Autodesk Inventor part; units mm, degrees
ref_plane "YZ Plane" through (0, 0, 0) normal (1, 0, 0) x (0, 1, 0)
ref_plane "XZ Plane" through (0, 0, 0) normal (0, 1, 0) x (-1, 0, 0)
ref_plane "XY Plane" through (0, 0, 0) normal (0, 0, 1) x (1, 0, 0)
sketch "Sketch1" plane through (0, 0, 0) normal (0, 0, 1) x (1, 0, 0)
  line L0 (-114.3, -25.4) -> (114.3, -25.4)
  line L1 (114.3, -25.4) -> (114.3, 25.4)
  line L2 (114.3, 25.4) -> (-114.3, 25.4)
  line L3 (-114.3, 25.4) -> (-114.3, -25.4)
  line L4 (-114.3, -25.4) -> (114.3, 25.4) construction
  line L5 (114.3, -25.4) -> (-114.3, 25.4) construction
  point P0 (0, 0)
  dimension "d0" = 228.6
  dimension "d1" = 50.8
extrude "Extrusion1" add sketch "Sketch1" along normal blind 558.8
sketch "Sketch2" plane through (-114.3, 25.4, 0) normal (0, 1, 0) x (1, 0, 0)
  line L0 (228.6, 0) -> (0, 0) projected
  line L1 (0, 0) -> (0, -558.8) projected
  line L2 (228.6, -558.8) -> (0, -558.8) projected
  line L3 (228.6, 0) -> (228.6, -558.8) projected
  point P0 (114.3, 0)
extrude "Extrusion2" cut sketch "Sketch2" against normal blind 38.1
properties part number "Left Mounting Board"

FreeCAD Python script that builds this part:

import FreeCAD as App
import Part
import Sketcher
Q = App.Units.Quantity


def add_polygon(sketch, points):
    """Adds a closed chain of lines whose ends are joined by coincident constraints."""
    first, n = sketch.GeometryCount, len(points)
    for a, b in zip(points, points[1:] + points[:1]):
        sketch.addGeometry(Part.LineSegment(App.Vector(*a, 0), App.Vector(*b, 0)), False)
    for i in range(n):
        sketch.addConstraint(Sketcher.Constraint("Coincident", first + i, 2, first + (i + 1) % n, 1))

doc = App.newDocument("Part")
params = doc.addObject("Spreadsheet::Sheet", "Params")
for row, (alias, value) in enumerate([
    ("sketch1_width", "9 in"),
    ("sketch1_height", "2 in"),
    ("pad1_length", "22 in"),
    ("sketch2_width", "9 in"),
    ("sketch2_height", "22 in"),
    ("pocket1_length", "1.5 in"),
], start=1):
    params.set(f"A{row}", alias)
    params.set(f"B{row}", "=" + value)
    params.setAlias(f"B{row}", alias)

body = doc.addObject("PartDesign::Body", "Body")

sketch1 = body.newObject("Sketcher::SketchObject", "Sketch")
sketch1.AttachmentSupport = (doc.getObject("XY_Plane"), [""])
sketch1.MapMode = "FlatFace"
add_polygon(sketch1, [(-114, 25), (-114, -25), (114, -25), (114, 25)])
sketch1.addConstraint(Sketcher.Constraint("Vertical", 0))
sketch1.addConstraint(Sketcher.Constraint("Horizontal", 1))
sketch1.addConstraint(Sketcher.Constraint("Vertical", 2))
sketch1.addConstraint(Sketcher.Constraint("Horizontal", 3))
sketch1.addConstraint(Sketcher.Constraint("Symmetric", 0, 2, 2, 2, -1, 1))
sketch1.addConstraint(Sketcher.Constraint("DistanceX", 1, 1, 1, 2, Q("9 in")))
sketch1.addConstraint(Sketcher.Constraint("DistanceY", 0, 2, 0, 1, Q("2 in")))
sketch1.setExpression("Constraints[9]", "Params.sketch1_width")
sketch1.setExpression("Constraints[10]", "Params.sketch1_height")
pad1 = body.newObject("PartDesign::Pad", "Pad")
pad1.Profile = sketch1
pad1.setExpression("Length", "Params.pad1_length")

sketch2 = body.newObject("Sketcher::SketchObject", "Sketch001")
sketch2.AttachmentSupport = (doc.getObject("XZ_Plane"), [""])
sketch2.MapMode = "FlatFace"
sketch2.AttachmentOffset = App.Placement(App.Vector(0, 0, -1 * 25.4), App.Rotation())
add_polygon(sketch2, [(114, 559), (114, 0), (-114, 0), (-114, 559)])
sketch2.addConstraint(Sketcher.Constraint("Vertical", 0))
sketch2.addConstraint(Sketcher.Constraint("Horizontal", 1))
sketch2.addConstraint(Sketcher.Constraint("Vertical", 2))
sketch2.addConstraint(Sketcher.Constraint("Horizontal", 3))
sketch2.addConstraint(Sketcher.Constraint("Symmetric", 0, 2, 1, 2, -1, 1))
sketch2.addConstraint(Sketcher.Constraint("DistanceX", 1, 2, 1, 1, Q("9 in")))
sketch2.addConstraint(Sketcher.Constraint("DistanceY", 0, 2, 0, 1, Q("22 in")))
sketch2.setExpression("Constraints[9]", "Params.sketch2_width")
sketch2.setExpression("Constraints[10]", "Params.sketch2_height")
pocket1 = body.newObject("PartDesign::Pocket", "Pocket")
pocket1.Profile = sketch2
pocket1.setExpression("Length", "Params.pocket1_length")
pocket1.Reversed = True

doc.recompute()
